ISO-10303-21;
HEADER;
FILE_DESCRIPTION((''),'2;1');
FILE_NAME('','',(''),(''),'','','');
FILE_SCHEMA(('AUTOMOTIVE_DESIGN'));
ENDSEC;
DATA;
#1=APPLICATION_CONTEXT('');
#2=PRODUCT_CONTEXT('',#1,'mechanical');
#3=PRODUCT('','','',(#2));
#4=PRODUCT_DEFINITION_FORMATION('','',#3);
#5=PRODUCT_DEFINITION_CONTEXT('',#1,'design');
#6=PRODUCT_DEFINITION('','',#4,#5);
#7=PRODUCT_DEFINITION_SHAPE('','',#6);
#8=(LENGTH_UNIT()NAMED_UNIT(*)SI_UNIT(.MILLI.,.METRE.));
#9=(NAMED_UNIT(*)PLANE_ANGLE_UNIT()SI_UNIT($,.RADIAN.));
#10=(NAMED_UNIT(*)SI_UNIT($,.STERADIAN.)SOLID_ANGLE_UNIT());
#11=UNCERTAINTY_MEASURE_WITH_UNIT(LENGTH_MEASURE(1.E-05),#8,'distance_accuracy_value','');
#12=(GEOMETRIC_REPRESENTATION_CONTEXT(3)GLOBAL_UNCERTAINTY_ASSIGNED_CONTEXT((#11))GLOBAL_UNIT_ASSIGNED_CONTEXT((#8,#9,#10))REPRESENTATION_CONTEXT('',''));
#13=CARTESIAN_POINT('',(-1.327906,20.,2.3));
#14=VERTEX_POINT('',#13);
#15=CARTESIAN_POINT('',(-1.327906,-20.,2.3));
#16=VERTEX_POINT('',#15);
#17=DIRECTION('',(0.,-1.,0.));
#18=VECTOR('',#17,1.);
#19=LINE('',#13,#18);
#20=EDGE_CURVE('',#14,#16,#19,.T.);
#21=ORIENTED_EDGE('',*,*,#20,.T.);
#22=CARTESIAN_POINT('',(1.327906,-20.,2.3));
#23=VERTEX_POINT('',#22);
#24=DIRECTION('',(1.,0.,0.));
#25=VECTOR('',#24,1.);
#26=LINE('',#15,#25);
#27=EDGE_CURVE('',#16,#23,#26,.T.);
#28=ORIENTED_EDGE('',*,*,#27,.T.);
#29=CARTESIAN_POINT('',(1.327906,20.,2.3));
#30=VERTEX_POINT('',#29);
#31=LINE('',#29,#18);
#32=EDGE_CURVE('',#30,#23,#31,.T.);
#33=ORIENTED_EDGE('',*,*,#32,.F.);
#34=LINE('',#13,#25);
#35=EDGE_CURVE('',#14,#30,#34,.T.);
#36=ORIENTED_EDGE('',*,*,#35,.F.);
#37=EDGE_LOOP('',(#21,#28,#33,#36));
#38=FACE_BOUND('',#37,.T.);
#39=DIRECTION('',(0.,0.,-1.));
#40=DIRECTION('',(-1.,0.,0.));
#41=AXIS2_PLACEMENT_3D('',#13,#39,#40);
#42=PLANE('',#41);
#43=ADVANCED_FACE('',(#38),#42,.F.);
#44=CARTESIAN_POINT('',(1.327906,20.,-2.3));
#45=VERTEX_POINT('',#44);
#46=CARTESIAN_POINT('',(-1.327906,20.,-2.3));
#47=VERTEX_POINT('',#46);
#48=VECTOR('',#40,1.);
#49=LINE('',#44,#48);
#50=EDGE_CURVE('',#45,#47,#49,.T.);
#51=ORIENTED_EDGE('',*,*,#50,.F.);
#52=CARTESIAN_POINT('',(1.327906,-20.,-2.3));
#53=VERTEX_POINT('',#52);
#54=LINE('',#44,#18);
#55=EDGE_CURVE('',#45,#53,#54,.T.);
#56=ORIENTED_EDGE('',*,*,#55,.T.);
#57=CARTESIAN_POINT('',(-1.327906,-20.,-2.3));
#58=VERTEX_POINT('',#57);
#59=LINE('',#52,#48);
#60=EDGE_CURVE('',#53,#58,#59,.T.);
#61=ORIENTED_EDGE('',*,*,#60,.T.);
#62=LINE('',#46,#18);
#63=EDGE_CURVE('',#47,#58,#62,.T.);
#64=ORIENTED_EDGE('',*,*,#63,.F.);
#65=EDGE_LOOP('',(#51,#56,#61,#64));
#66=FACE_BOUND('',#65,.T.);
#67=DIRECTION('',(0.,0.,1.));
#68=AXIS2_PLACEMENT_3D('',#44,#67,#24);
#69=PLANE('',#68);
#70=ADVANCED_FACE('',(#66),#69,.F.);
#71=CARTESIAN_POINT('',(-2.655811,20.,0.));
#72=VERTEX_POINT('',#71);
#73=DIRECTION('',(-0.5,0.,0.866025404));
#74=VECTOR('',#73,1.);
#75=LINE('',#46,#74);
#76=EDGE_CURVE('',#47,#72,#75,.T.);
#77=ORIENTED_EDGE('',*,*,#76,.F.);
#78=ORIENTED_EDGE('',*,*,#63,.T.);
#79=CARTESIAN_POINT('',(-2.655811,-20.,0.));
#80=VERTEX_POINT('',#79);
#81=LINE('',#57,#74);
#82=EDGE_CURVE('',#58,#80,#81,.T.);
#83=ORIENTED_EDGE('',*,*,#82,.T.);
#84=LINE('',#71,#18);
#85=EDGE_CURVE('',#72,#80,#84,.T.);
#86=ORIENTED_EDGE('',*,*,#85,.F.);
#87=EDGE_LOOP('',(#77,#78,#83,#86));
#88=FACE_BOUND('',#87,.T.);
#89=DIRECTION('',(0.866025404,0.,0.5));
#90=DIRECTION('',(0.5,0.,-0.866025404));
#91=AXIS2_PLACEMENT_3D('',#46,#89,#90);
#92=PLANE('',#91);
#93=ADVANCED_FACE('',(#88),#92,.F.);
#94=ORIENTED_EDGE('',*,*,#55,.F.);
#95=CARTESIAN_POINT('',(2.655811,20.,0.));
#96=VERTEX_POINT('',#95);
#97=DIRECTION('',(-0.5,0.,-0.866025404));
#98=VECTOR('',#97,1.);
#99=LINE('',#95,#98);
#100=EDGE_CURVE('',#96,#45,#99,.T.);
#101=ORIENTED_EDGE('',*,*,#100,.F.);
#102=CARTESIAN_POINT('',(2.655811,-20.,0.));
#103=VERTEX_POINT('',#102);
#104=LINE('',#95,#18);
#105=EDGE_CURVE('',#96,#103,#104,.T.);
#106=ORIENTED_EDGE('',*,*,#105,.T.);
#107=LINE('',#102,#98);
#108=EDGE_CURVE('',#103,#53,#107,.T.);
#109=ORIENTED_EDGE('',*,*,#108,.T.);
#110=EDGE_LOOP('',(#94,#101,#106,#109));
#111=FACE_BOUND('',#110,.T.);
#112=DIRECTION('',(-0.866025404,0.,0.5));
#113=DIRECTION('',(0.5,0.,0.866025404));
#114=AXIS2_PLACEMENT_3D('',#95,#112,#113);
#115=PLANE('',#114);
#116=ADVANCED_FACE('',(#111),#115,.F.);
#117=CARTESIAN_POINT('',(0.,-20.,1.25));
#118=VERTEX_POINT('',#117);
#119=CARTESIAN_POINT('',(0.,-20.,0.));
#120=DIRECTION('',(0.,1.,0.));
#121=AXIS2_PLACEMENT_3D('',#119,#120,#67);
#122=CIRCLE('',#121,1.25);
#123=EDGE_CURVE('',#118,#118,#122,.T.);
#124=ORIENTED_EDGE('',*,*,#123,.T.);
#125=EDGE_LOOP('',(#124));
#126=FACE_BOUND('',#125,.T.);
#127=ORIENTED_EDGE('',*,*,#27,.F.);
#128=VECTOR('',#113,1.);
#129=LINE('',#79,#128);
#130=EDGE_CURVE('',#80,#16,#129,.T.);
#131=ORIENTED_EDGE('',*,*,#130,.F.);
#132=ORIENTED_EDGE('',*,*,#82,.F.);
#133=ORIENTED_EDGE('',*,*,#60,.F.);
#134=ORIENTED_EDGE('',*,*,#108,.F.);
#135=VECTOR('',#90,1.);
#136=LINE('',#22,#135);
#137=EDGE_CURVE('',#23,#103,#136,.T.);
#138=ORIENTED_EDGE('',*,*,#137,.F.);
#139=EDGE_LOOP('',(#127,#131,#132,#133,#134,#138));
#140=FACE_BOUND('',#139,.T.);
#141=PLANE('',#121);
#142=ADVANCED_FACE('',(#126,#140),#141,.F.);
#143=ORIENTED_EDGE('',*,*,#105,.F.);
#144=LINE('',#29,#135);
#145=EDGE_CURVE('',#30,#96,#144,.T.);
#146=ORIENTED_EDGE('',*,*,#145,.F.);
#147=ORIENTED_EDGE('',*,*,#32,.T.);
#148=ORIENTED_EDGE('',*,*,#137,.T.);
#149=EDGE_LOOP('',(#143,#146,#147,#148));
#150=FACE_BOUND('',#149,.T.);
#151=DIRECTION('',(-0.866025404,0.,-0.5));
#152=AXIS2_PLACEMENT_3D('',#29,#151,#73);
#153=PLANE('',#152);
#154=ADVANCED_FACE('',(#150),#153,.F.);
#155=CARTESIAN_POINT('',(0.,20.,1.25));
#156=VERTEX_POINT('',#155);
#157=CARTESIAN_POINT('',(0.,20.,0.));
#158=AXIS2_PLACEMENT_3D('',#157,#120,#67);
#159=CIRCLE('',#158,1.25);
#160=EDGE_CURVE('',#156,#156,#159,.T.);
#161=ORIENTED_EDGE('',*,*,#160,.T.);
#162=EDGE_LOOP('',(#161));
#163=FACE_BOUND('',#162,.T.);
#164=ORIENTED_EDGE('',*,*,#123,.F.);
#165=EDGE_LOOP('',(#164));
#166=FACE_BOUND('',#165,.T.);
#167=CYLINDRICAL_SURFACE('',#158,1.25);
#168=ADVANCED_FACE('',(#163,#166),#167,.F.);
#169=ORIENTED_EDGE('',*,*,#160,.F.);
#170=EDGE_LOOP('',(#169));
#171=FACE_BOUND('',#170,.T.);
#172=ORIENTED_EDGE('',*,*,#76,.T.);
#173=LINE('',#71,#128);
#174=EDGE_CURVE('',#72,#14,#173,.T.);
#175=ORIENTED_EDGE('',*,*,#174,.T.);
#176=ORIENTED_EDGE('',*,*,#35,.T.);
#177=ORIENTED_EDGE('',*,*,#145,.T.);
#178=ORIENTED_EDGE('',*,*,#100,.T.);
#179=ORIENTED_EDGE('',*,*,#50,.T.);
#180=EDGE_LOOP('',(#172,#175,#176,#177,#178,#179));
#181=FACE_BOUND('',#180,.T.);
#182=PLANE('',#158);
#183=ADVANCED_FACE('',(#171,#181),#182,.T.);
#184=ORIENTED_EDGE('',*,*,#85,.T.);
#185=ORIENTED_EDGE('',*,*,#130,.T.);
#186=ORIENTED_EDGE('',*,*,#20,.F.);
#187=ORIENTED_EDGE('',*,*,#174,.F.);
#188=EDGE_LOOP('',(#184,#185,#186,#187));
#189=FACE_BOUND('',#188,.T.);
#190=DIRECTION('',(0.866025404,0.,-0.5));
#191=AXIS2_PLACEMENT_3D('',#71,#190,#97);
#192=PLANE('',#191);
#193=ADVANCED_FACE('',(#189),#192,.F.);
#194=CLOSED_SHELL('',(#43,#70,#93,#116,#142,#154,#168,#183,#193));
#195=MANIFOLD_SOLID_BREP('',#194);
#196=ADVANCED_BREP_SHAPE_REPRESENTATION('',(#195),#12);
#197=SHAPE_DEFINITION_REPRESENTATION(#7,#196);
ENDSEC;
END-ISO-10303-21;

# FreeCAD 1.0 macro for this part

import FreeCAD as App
import Part
import Sketcher

V = App.Vector
Q = App.Units.Quantity


def add_polygon(sketch, points):
    """Adds a closed chain of lines whose ends are joined by coincident constraints."""
    first, n = sketch.GeometryCount, len(points)
    for a, b in zip(points, points[1:] + points[:1]):
        sketch.addGeometry(Part.LineSegment(App.Vector(*a, 0), App.Vector(*b, 0)), False)
    for i in range(n):
        sketch.addConstraint(Sketcher.Constraint("Coincident", first + i, 2, first + (i + 1) % n, 1))

doc = App.newDocument("Part")
body = doc.addObject("PartDesign::Body", "Body")

# Sketch on XZ plane
sketch1 = body.newObject("Sketcher::SketchObject", "Sketch")
sketch1.AttachmentSupport = (doc.getObject("XZ_Plane"), [""])
sketch1.MapMode = "FlatFace"
add_polygon(sketch1, [(1.3, 2.3), (2.7, 0), (1.3, -2.3), (-1.3, -2.3), (-2.7, 0), (-1.3, 2.3)])  # lines 0-5
sketch1.addConstraint([
    Sketcher.Constraint("Horizontal", 2),
    Sketcher.Constraint("Horizontal", 5),
    Sketcher.Constraint("Symmetric", 0, 2, 3, 2, -1, 1),
    Sketcher.Constraint("Symmetric", 1, 2, 4, 2, -1, 1),
    Sketcher.Constraint("PointOnObject", 0, 2, -1),
    Sketcher.Constraint("Parallel", 0, 3),
    Sketcher.Constraint("Vertical", 2, 2, 4, 2),
    Sketcher.Constraint("Angle", 0, Q("-60 deg")),
    Sketcher.Constraint("DistanceY", 1, 2, -1, 1, Q("2.3 mm")),
    Sketcher.Constraint("DistanceX", 2, 2, 2, 1, Q("2.655811 mm")),
])
pad1 = body.newObject("PartDesign::Pad", "Pad")
pad1.Profile = sketch1
pad1.Length = 40
pad1.Midplane = True

# Sketch on YZ plane
sketch2 = body.newObject("Sketcher::SketchObject", "Sketch001")
sketch2.AttachmentSupport = (doc.getObject("YZ_Plane"), [""])
sketch2.MapMode = "FlatFace"
add_polygon(sketch2, [(-20, 0), (20, 0), (20, 1.2), (-20, 1.2)])  # lines 0-3
sketch2.addConstraint([
    Sketcher.Constraint("Horizontal", 0),
    Sketcher.Constraint("Vertical", 1),
    Sketcher.Constraint("Horizontal", 2),
    Sketcher.Constraint("Vertical", 3),
    Sketcher.Constraint("PointOnObject", 0, 2, -1),
    Sketcher.Constraint("DistanceX", -1, 1, 0, 2, Q("20 mm")),
    Sketcher.Constraint("DistanceY", 1, 1, 1, 2, Q("1.25 mm")),
    Sketcher.Constraint("DistanceX", 0, 1, 0, 2, Q("40.001 mm")),
])
groove = body.newObject("PartDesign::Groove", "Groove")
groove.Profile = sketch2
groove.ReferenceAxis = (sketch2, ["H_Axis"])
groove.Angle = 360

doc.recompute()
